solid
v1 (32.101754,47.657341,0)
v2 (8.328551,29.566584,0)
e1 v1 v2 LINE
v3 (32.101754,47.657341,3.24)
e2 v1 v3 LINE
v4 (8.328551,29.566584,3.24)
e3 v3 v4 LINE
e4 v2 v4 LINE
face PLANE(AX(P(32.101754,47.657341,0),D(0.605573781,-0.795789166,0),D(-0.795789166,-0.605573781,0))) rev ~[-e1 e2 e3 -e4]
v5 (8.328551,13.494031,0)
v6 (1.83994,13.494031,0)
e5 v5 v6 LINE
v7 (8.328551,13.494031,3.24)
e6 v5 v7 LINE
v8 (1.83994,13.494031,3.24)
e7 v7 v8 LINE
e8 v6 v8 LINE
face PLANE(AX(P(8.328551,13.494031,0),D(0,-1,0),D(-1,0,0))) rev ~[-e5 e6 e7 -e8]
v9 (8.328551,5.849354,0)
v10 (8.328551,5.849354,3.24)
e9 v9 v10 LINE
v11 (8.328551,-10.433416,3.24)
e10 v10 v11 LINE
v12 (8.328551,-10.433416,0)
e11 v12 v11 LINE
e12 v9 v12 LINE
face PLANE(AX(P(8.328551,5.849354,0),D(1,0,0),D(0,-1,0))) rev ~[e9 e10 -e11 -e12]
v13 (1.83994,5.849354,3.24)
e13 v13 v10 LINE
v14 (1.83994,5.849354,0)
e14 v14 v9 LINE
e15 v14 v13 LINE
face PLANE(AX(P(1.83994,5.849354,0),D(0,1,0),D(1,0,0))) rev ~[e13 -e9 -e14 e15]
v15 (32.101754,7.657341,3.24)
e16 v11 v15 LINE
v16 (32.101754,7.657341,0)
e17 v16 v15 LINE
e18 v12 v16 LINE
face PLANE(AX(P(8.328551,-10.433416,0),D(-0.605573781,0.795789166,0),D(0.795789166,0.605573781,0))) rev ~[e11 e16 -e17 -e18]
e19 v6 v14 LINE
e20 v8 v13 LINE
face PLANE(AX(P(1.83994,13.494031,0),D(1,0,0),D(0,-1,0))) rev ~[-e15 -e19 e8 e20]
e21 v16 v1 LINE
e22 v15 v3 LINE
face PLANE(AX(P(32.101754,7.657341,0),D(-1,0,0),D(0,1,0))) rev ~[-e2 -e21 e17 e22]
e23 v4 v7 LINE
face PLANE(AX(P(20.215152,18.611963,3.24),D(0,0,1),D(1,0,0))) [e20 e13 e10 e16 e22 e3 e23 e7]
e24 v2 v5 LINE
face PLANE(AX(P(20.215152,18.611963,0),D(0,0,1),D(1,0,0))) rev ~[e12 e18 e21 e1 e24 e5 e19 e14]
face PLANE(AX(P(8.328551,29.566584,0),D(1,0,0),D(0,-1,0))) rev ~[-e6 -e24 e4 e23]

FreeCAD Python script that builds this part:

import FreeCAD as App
import Part
import Sketcher
Q = App.Units.Quantity


def add_polygon(sketch, points):
    """Adds a closed chain of lines whose ends are joined by coincident constraints."""
    first, n = sketch.GeometryCount, len(points)
    for a, b in zip(points, points[1:] + points[:1]):
        sketch.addGeometry(Part.LineSegment(App.Vector(*a, 0), App.Vector(*b, 0)), False)
    for i in range(n):
        sketch.addConstraint(Sketcher.Constraint("Coincident", first + i, 2, first + (i + 1) % n, 1))

doc = App.newDocument("Part")
body = doc.addObject("PartDesign::Body", "Body")

# Sketch on XY plane
sketch1 = body.newObject("Sketcher::SketchObject", "Sketch")
sketch1.AttachmentSupport = (doc.getObject("XY_Plane"), [""])
sketch1.MapMode = "FlatFace"
add_polygon(sketch1, [(32.101754, 47.657341), (8.328551, 29.566584), (8.328551, 13.494031), (1.83994, 13.494031), (1.83994, 5.849354), (8.328551, 5.849354), (8.328551, -10.433416), (32.101754, 7.657341)])  # lines 0-7
sketch1.addConstraint([
    Sketcher.Constraint("Vertical", 1),
    Sketcher.Constraint("Horizontal", 2),
    Sketcher.Constraint("Vertical", 3),
    Sketcher.Constraint("Horizontal", 4),
    Sketcher.Constraint("Vertical", 5),
    Sketcher.Constraint("Vertical", 7),
    Sketcher.Constraint("Parallel", 0, 6),
    Sketcher.Constraint("Vertical", 1, 2, 4, 2),
    Sketcher.Constraint("DistanceY", 7, 1, 7, 2, Q("40 mm")),
    Sketcher.Constraint("DistanceX", 2, 2, 2, 1, Q("6.488611 mm")),
    Sketcher.Constraint("DistanceY", 5, 2, 5, 1, Q("16.28277 mm")),
    Sketcher.Constraint("DistanceY", 1, 2, 1, 1, Q("16.072553 mm")),
    Sketcher.Constraint("DistanceX", -1, 1, 0, 2, Q("8.328551 mm")),
    Sketcher.Constraint("DistanceY", -1, 1, 1, 2, Q("13.494031 mm")),
    Sketcher.Constraint("DistanceY", -1, 1, 6, 2, Q("7.657341 mm")),
    Sketcher.Constraint("Distance", 0, Q("29.873745 mm")),
])
pad1 = body.newObject("PartDesign::Pad", "Pad")
pad1.Profile = sketch1
pad1.Length = 3.24

doc.recompute()
